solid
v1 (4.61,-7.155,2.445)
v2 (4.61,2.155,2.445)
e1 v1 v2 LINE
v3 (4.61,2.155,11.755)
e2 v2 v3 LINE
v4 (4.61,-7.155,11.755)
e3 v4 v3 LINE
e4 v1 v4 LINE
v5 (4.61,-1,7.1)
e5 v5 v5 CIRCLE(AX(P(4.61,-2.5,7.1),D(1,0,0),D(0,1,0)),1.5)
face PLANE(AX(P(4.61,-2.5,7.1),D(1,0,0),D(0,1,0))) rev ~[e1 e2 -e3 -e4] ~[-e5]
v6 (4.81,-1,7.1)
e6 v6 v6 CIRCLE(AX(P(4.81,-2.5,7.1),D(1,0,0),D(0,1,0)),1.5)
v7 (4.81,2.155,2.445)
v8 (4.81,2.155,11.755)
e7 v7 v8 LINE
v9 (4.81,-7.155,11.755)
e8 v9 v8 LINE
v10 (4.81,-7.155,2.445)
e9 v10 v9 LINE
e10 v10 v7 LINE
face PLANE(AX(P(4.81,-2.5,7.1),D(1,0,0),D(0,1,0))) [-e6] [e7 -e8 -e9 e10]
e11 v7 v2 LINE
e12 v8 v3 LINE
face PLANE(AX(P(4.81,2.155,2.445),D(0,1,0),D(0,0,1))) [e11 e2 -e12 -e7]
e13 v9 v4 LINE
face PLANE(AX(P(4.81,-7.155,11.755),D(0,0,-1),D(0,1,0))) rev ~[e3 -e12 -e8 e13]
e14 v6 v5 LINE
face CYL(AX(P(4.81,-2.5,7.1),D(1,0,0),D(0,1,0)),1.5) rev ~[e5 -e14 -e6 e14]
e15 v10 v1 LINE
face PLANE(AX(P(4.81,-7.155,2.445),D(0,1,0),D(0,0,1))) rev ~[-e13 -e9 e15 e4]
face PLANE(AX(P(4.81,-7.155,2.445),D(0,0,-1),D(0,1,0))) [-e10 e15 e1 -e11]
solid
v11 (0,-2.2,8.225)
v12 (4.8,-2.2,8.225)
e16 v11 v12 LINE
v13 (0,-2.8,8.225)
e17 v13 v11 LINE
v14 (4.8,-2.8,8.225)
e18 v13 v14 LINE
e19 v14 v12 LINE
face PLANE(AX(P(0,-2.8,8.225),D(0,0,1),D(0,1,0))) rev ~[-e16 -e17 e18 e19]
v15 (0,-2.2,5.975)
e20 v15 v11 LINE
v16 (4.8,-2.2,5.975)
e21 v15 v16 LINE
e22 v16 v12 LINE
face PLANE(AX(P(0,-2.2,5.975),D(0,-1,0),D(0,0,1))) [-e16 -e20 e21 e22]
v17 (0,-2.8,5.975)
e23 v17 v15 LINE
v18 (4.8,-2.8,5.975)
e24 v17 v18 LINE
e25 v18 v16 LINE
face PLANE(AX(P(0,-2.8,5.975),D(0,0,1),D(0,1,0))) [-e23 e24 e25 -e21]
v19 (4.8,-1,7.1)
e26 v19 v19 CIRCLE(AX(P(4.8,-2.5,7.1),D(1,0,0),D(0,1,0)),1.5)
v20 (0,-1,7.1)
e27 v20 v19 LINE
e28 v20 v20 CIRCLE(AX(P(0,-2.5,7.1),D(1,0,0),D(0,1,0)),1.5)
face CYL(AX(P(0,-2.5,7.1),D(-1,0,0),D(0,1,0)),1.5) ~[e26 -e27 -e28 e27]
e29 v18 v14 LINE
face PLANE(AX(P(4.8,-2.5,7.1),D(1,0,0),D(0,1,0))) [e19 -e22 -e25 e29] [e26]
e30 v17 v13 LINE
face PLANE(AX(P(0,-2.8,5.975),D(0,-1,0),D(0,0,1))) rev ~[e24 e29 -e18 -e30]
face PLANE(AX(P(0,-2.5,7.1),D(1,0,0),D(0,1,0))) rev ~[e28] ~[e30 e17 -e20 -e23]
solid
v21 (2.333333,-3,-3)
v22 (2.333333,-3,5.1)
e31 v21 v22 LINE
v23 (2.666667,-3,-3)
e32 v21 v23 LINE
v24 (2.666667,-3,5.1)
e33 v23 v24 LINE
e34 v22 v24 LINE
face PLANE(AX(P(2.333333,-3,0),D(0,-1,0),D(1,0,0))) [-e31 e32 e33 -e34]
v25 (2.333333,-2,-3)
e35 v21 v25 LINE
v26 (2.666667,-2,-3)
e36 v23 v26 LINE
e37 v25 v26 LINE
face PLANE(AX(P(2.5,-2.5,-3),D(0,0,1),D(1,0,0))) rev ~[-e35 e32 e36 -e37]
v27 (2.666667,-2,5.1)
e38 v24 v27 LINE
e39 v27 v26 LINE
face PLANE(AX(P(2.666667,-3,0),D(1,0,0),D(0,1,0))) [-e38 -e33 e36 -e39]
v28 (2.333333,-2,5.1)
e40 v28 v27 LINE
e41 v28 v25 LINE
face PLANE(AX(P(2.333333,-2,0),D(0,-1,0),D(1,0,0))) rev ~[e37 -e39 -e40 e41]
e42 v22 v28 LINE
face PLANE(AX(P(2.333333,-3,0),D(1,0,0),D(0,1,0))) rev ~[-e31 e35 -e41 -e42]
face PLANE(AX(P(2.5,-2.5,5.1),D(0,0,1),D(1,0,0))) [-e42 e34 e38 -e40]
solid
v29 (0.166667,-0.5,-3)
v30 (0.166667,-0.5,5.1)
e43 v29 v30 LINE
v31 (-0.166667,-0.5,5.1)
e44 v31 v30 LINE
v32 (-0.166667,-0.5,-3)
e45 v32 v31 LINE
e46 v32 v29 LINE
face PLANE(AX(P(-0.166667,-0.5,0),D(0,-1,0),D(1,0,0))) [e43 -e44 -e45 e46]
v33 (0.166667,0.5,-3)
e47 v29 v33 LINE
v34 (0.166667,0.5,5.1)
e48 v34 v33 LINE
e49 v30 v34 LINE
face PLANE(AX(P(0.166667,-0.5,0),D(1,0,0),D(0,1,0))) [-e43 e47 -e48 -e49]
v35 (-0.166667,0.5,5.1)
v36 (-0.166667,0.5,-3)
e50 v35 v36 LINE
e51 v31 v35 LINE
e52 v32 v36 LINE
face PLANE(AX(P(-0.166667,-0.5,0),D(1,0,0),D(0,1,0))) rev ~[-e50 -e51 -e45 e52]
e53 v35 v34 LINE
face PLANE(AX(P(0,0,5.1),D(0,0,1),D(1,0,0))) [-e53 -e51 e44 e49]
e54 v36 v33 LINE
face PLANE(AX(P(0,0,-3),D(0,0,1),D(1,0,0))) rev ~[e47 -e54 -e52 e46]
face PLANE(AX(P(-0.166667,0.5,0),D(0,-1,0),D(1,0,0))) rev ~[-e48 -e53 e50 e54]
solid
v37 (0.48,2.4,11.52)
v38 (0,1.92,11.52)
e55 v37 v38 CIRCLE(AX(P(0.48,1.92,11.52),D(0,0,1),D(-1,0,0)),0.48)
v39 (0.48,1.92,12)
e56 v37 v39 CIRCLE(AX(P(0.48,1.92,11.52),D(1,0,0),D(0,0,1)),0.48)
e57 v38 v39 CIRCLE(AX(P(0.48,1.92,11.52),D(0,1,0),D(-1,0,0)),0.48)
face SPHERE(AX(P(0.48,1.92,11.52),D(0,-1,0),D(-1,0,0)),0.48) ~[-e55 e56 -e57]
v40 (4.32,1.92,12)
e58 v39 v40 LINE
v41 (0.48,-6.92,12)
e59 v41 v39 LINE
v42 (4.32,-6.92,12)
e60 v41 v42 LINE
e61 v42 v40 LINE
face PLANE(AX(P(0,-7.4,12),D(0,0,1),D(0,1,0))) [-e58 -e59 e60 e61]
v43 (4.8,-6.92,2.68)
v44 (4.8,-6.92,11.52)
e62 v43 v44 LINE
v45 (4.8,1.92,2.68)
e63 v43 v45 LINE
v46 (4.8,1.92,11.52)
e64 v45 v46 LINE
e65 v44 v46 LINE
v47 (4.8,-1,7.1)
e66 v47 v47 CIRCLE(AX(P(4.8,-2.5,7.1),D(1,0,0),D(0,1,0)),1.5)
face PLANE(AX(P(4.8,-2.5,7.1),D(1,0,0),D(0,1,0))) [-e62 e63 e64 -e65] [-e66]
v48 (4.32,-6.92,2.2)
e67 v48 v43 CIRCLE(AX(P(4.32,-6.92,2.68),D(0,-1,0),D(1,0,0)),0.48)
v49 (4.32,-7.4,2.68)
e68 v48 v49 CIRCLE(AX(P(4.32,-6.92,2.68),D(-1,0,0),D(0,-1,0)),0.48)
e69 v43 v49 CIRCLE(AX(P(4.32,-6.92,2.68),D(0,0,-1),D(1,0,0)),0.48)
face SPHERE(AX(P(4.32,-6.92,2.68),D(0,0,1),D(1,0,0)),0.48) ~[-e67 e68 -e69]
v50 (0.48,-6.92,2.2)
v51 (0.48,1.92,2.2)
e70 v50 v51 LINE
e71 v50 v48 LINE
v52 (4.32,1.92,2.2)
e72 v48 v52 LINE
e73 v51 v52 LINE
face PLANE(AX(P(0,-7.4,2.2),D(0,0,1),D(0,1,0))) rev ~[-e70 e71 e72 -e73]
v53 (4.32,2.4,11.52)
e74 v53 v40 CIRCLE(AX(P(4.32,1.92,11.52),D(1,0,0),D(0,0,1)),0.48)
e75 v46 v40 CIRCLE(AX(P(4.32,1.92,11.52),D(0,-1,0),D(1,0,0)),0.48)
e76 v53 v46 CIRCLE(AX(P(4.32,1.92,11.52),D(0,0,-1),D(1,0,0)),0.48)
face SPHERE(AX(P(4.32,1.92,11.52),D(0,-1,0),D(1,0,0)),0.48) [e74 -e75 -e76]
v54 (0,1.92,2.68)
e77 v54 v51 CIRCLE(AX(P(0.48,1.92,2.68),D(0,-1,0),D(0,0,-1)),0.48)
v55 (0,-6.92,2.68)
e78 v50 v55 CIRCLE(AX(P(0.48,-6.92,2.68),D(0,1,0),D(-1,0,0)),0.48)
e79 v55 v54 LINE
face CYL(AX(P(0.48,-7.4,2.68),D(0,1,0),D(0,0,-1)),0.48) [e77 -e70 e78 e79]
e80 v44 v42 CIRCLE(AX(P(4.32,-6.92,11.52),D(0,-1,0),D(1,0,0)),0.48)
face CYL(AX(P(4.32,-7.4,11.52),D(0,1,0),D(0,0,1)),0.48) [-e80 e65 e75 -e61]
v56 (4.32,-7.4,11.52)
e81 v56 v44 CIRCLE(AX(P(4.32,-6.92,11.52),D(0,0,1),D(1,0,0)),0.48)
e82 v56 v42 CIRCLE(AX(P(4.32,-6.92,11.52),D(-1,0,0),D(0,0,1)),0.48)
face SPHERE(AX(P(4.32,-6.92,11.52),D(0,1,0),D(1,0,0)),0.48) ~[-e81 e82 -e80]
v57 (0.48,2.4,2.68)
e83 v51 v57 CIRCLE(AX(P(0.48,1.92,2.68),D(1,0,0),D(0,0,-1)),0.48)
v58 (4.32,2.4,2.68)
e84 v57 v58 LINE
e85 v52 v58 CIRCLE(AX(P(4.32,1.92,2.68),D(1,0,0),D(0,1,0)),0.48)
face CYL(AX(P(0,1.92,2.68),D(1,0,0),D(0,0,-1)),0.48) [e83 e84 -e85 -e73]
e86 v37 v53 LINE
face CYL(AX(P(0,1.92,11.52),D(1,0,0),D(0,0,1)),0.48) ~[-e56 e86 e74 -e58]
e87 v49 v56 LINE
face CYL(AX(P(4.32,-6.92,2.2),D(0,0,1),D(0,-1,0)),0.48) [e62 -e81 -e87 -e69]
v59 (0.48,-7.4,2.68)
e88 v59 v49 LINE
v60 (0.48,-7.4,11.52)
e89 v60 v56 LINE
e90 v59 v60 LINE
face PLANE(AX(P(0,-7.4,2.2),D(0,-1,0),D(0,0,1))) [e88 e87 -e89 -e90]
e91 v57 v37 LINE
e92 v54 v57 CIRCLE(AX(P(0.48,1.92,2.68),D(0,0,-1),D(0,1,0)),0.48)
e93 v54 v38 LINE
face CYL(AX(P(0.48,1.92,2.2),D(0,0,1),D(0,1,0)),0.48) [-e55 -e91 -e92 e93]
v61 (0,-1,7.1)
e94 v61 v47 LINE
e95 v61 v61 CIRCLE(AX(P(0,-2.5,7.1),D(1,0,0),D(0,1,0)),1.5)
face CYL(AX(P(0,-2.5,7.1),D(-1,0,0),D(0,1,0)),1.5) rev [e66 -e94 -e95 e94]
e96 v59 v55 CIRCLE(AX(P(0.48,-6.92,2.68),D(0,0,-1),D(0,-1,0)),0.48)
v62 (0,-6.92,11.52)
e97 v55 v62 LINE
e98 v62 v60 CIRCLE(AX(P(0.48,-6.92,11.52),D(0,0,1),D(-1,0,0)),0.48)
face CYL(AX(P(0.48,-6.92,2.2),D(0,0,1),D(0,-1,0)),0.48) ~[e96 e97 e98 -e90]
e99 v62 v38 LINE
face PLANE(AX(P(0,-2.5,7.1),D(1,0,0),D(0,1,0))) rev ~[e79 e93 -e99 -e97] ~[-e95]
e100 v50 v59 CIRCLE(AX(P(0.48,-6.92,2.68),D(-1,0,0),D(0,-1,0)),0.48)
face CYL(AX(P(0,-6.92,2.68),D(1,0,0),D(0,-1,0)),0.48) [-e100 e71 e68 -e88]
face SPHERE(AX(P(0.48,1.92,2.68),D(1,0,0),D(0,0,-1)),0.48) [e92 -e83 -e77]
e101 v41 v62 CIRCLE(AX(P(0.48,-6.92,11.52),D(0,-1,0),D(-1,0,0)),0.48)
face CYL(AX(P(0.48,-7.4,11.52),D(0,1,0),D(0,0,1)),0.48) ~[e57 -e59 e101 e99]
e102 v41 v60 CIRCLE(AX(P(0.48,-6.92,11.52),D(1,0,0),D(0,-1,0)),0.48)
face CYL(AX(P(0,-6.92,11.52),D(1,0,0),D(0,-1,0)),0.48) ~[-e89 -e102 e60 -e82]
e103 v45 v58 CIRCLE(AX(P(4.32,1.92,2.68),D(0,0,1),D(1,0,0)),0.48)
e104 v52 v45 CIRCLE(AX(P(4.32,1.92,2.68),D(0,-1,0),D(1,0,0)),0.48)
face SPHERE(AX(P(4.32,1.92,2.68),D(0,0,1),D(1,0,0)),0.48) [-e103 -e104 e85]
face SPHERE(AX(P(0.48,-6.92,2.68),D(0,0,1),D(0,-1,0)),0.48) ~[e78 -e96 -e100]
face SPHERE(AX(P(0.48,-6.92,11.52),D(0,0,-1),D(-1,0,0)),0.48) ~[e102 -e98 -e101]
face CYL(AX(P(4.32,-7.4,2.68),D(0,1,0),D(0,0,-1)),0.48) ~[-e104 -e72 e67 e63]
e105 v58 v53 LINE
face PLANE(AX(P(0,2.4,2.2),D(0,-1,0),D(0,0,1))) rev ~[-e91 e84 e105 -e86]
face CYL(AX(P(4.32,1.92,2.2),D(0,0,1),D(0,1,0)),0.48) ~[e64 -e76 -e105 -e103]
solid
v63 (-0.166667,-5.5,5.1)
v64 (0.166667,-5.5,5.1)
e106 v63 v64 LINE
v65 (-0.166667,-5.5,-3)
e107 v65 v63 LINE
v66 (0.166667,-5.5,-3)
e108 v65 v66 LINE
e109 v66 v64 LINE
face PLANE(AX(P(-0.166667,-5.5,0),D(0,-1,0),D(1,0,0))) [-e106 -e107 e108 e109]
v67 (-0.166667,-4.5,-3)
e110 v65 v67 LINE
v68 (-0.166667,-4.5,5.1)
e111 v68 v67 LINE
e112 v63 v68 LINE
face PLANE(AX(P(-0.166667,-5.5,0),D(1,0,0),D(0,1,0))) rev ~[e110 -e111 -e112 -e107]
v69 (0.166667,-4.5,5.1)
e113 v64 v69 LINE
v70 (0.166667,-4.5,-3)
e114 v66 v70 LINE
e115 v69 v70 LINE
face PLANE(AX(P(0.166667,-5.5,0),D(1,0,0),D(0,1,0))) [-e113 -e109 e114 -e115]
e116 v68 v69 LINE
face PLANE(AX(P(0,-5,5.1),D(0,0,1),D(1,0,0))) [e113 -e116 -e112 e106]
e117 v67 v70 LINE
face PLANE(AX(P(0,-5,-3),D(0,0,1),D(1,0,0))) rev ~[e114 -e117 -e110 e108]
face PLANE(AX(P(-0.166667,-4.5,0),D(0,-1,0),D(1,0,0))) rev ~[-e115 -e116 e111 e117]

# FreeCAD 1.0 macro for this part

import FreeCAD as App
import Part
import Sketcher

V = App.Vector


def edges_at(feature, points):
    """Names of the edges that pass closest to the given points."""
    edges = feature.Shape.Edges
    near = lambda p: min(range(len(edges)), key=lambda i: edges[i].distToShape(Part.Vertex(*p))[0])
    return sorted({f"Edge{near(p) + 1}" for p in points})


def add_polygon(sketch, points):
    """Adds a closed chain of lines whose ends are joined by coincident constraints."""
    first, n = sketch.GeometryCount, len(points)
    for a, b in zip(points, points[1:] + points[:1]):
        sketch.addGeometry(Part.LineSegment(App.Vector(*a, 0), App.Vector(*b, 0)), False)
    for i in range(n):
        sketch.addConstraint(Sketcher.Constraint("Coincident", first + i, 2, first + (i + 1) % n, 1))

doc = App.newDocument("Part")
body = doc.addObject("PartDesign::Body", "Body")

sketch1 = doc.addObject("Sketcher::SketchObject", "Sketch")
body.addObject(sketch1)
sketch1.AttachmentSupport = (doc.YZ_Plane, [""])
sketch1.MapMode = "FlatFace"
sketch1.addGeometry(Part.Circle(V(-2.5, 7.1, 0), V(0, 0, 1), 1.5), False)
add_polygon(sketch1, [(-2.2, 6), (-2.8, 6), (-2.8, 8.2), (-2.2, 8.2)])
sketch1.addConstraint([
    Sketcher.Constraint("Horizontal", 1),
    Sketcher.Constraint("Vertical", 2),
    Sketcher.Constraint("Horizontal", 3),
    Sketcher.Constraint("Vertical", 4),
    Sketcher.Constraint("Diameter", 0, 3.0),
    Sketcher.Constraint("DistanceX", 1, 2, 1, 1, 0.6),
    Sketcher.Constraint("DistanceY", 2, 1, 2, 2, 2.25),
    Sketcher.Constraint("DistanceX", 0, 3, -1, 1, 2.5),
    Sketcher.Constraint("DistanceY", -1, 1, 0, 3, 7.1),
    Sketcher.Constraint("DistanceX", 1, 2, -1, 1, 2.8),
    Sketcher.Constraint("DistanceY", -1, 1, 1, 2, 5.975),
])
pad1 = doc.addObject("PartDesign::Pad", "Pad")
body.addObject(pad1)
pad1.Profile = sketch1
pad1.Length = 4.8
body2 = doc.addObject("PartDesign::Body", "Body001")
body2.AllowCompound = True

sketch2 = doc.addObject("Sketcher::SketchObject", "Sketch001")
body2.addObject(sketch2)
sketch2.AttachmentSupport = (doc.getObject("XY_Plane001"), [""])
sketch2.MapMode = "FlatFace"
add_polygon(sketch2, [(-0.17, 0.5), (-0.17, -0.5), (0.17, -0.5), (0.17, 0.5)])
add_polygon(sketch2, [(2.33, -2), (2.33, -3), (2.67, -3), (2.67, -2)])
add_polygon(sketch2, [(-0.17, -4.5), (-0.17, -5.5), (0.17, -5.5), (0.17, -4.5)])
sketch2.addConstraint([
    Sketcher.Constraint("Vertical", 0),
    Sketcher.Constraint("Horizontal", 1),
    Sketcher.Constraint("Vertical", 2),
    Sketcher.Constraint("Horizontal", 3),
    Sketcher.Constraint("Vertical", 4),
    Sketcher.Constraint("Horizontal", 5),
    Sketcher.Constraint("Vertical", 6),
    Sketcher.Constraint("Horizontal", 7),
    Sketcher.Constraint("Vertical", 8),
    Sketcher.Constraint("Horizontal", 9),
    Sketcher.Constraint("Vertical", 10),
    Sketcher.Constraint("Horizontal", 11),
    Sketcher.Constraint("Symmetric", 0, 2, 2, 2, -1, 1),
    Sketcher.Constraint("Vertical", 3, 2, 8, 2),
    Sketcher.Constraint("Vertical", 2, 2, 9, 2),
    Sketcher.Constraint("Equal", 3, 5),
    Sketcher.Constraint("Equal", 2, 4),
    Sketcher.Constraint("Equal", 6, 8),
    Sketcher.Constraint("DistanceY", 0, 2, 0, 1, 1.0),
    Sketcher.Constraint("DistanceY", 4, 2, -1, 1, 3.0),
    Sketcher.Constraint("DistanceY", 8, 2, 0, 2, 5.0),
    Sketcher.Constraint("DistanceX", 0, 2, 4, 2, 2.5),
    Sketcher.Constraint("DistanceX", 1, 1, 1, 2, 0.333334),
])
pad2 = doc.addObject("PartDesign::Pad", "Pad001")
body2.addObject(pad2)
pad2.Profile = sketch2
pad2.Type = "TwoLengths"
pad2.Length = 5.1
pad2.Length2 = 3
body3 = doc.addObject("PartDesign::Body", "Body002")

sketch3 = doc.addObject("Sketcher::SketchObject", "Sketch002")
body3.addObject(sketch3)
sketch3.AttachmentSupport = (doc.getObject("YZ_Plane002"), [""])
sketch3.MapMode = "FlatFace"
sketch3.AttachmentOffset = App.Placement(V(0, 0, 4.81), App.Rotation())
add_polygon(sketch3, [(-7.2, 11.8), (-7.2, 2.4), (2.2, 2.4), (2.2, 11.8)])
sketch3.addGeometry(Part.Circle(V(-2.5, 7.1, 0), V(0, 0, 1), 1.5), False)
sketch3.addConstraint([
    Sketcher.Constraint("Vertical", 0),
    Sketcher.Constraint("Horizontal", 1),
    Sketcher.Constraint("Vertical", 2),
    Sketcher.Constraint("Horizontal", 3),
    Sketcher.Constraint("Equal", 3, 0),
    Sketcher.Constraint("Diameter", 4, 3.0),
    Sketcher.Constraint("DistanceX", 1, 1, 1, 2, 9.31),
    Sketcher.Constraint("DistanceX", 4, 3, -1, 1, 2.5),
    Sketcher.Constraint("DistanceY", -1, 1, 4, 3, 7.1),
    Sketcher.Constraint("DistanceX", 0, 2, -1, 1, 7.155),
    Sketcher.Constraint("DistanceY", -1, 1, 0, 2, 2.445),
])
pad3 = doc.addObject("PartDesign::Pad", "Pad002")
body3.addObject(pad3)
pad3.Profile = sketch3
pad3.Length = 0.2
pad3.Reversed = True
body4 = doc.addObject("PartDesign::Body", "Body003")

sketch4 = doc.addObject("Sketcher::SketchObject", "Sketch003")
body4.addObject(sketch4)
sketch4.AttachmentSupport = (doc.getObject("YZ_Plane003"), [""])
sketch4.MapMode = "FlatFace"
add_polygon(sketch4, [(-7.4, 12), (-7.4, 2.2), (2.4, 2.2), (2.4, 12)])
sketch4.addGeometry(Part.Circle(V(-2.5, 7.1, 0), V(0, 0, 1), 1.5), False)
sketch4.addConstraint([
    Sketcher.Constraint("Vertical", 0),
    Sketcher.Constraint("Horizontal", 1),
    Sketcher.Constraint("Vertical", 2),
    Sketcher.Constraint("Horizontal", 3),
    Sketcher.Constraint("Equal", 3, 0),
    Sketcher.Constraint("Diameter", 4, 3.0),
    Sketcher.Constraint("DistanceX", 1, 1, 1, 2, 9.8),
    Sketcher.Constraint("DistanceY", -1, 1, 2, 2, 12.0),
    Sketcher.Constraint("DistanceX", 4, 3, -1, 1, 2.5),
    Sketcher.Constraint("DistanceY", -1, 1, 4, 3, 7.1),
    Sketcher.Constraint("DistanceX", 0, 2, -1, 1, 7.4),
])
pad4 = doc.addObject("PartDesign::Pad", "Pad003")
body4.addObject(pad4)
pad4.Profile = sketch4
pad4.Length = 4.8
doc.recompute()

fillet = doc.addObject("PartDesign::Fillet", "Fillet")
body4.addObject(fillet)
fillet.Base = (pad4, edges_at(pad4, [
    (0, -7.4, 7.1),
    (0, -2.5, 12),
    (4.8, -2.5, 12),
    (4.8, -7.4, 7.1),
    (4.8, 2.4, 7.1),
    (4.8, -2.5, 2.2),
    (2.4, -7.4, 12),
    (2.4, -7.4, 2.2),
    (2.4, 2.4, 2.2),
    (0, -2.5, 2.2),
    (0, 2.4, 7.1),
    (2.4, 2.4, 12),
]))
fillet.Radius = 0.48

doc.recompute()
